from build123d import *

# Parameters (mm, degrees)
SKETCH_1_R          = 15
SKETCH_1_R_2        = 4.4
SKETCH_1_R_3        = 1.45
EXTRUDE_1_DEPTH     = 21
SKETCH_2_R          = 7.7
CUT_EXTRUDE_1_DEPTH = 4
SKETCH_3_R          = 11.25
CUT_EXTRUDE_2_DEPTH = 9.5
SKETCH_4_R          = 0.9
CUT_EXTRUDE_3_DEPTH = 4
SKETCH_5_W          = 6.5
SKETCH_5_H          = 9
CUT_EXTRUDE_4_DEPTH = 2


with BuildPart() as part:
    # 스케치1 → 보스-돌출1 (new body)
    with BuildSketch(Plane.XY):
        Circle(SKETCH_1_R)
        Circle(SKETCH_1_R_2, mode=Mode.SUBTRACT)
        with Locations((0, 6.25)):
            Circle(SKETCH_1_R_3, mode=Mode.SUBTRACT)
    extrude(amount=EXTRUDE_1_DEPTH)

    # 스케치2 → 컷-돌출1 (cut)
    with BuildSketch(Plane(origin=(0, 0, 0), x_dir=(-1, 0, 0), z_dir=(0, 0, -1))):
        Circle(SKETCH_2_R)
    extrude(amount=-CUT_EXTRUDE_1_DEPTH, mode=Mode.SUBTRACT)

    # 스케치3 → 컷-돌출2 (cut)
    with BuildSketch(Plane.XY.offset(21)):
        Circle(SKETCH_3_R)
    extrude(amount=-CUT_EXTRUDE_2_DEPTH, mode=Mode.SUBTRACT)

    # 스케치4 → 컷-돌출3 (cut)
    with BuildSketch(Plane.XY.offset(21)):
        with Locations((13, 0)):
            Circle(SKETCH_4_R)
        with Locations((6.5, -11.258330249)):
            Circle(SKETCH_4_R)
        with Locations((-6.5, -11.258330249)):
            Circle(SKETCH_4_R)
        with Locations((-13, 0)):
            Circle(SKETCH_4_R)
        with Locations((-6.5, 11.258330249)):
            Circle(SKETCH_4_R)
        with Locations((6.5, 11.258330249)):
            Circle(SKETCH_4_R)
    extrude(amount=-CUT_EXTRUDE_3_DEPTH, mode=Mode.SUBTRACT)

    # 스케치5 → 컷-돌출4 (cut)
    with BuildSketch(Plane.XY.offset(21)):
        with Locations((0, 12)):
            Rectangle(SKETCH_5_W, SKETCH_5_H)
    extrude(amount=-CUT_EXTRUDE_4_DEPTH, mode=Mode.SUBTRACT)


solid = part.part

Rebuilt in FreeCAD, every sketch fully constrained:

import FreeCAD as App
import Part
import Sketcher
Q = App.Units.Quantity

doc = App.newDocument("Part")
body = doc.addObject("PartDesign::Body", "Body")

sketch1 = body.newObject("Sketcher::SketchObject", "Sketch")
sketch1.AttachmentSupport = (doc.getObject("XY_Plane"), [""])
sketch1.MapMode = "FlatFace"
sketch1.addGeometry(Part.Circle(App.Vector(0, 0, 0), App.Vector(0, 0, 1), 15), False)
sketch1.addGeometry(Part.Circle(App.Vector(0, 0, 0), App.Vector(0, 0, 1), 4.4), False)
sketch1.addGeometry(Part.Circle(App.Vector(0, 6.25, 0), App.Vector(0, 0, 1), 1.45), False)
sketch1.addConstraint(Sketcher.Constraint("Coincident", 0, 3, -1, 1))
sketch1.addConstraint(Sketcher.Constraint("Coincident", 1, 3, -1, 1))
sketch1.addConstraint(Sketcher.Constraint("PointOnObject", 2, 3, -2))
sketch1.addConstraint(Sketcher.Constraint("Diameter", 0, Q("30 mm")))
sketch1.addConstraint(Sketcher.Constraint("Diameter", 1, Q("8.8 mm")))
sketch1.addConstraint(Sketcher.Constraint("Diameter", 2, Q("2.9 mm")))
sketch1.addConstraint(Sketcher.Constraint("DistanceY", -1, 1, 2, 3, Q("6.25 mm")))
pad1 = body.newObject("PartDesign::Pad", "Pad")
pad1.Profile = sketch1
pad1.Length = 21

sketch2 = body.newObject("Sketcher::SketchObject", "Sketch001")
sketch2.AttachmentSupport = (doc.getObject("XY_Plane"), [""])
sketch2.MapMode = "FlatFace"
sketch2.addGeometry(Part.Circle(App.Vector(0, 0, 0), App.Vector(0, 0, 1), 7.7), False)
sketch2.addConstraint(Sketcher.Constraint("Coincident", 0, 3, -1, 1))
sketch2.addConstraint(Sketcher.Constraint("Diameter", 0, Q("15.4 mm")))
pocket1 = body.newObject("PartDesign::Pocket", "Pocket")
pocket1.Profile = sketch2
pocket1.Length = 4
pocket1.Reversed = True

sketch3 = body.newObject("Sketcher::SketchObject", "Sketch002")
sketch3.AttachmentSupport = (doc.getObject("XY_Plane"), [""])
sketch3.MapMode = "FlatFace"
sketch3.AttachmentOffset = App.Placement(App.Vector(0, 0, 21), App.Rotation())
sketch3.addGeometry(Part.Circle(App.Vector(0, 0, 0), App.Vector(0, 0, 1), 11.25), False)
sketch3.addConstraint(Sketcher.Constraint("Coincident", 0, 3, -1, 1))
sketch3.addConstraint(Sketcher.Constraint("Diameter", 0, Q("22.5 mm")))
pocket2 = body.newObject("PartDesign::Pocket", "Pocket001")
pocket2.Profile = sketch3
pocket2.Length = 9.5

sketch4 = body.newObject("Sketcher::SketchObject", "Sketch003")
sketch4.AttachmentSupport = (doc.getObject("XY_Plane"), [""])
sketch4.MapMode = "FlatFace"
sketch4.AttachmentOffset = App.Placement(App.Vector(0, 0, 21), App.Rotation())
sketch4.addGeometry(Part.Circle(App.Vector(13, 0, 0), App.Vector(0, 0, 1), 0.9), False)
sketch4.addGeometry(Part.Circle(App.Vector(6.5, -11.25833, 0), App.Vector(0, 0, 1), 0.9), False)
sketch4.addGeometry(Part.Circle(App.Vector(-6.5, -11.25833, 0), App.Vector(0, 0, 1), 0.9), False)
sketch4.addGeometry(Part.Circle(App.Vector(-13, 0, 0), App.Vector(0, 0, 1), 0.9), False)
sketch4.addGeometry(Part.Circle(App.Vector(-6.5, 11.25833, 0), App.Vector(0, 0, 1), 0.9), False)
sketch4.addGeometry(Part.Circle(App.Vector(6.5, 11.25833, 0), App.Vector(0, 0, 1), 0.9), False)
sketch4.addConstraint(Sketcher.Constraint("Equal", 0, 1))
sketch4.addConstraint(Sketcher.Constraint("Equal", 1, 2))
sketch4.addConstraint(Sketcher.Constraint("Equal", 2, 3))
sketch4.addConstraint(Sketcher.Constraint("Equal", 3, 4))
sketch4.addConstraint(Sketcher.Constraint("Equal", 4, 5))
sketch4.addConstraint(Sketcher.Constraint("Symmetric", 0, 3, 3, 3, -1, 1))
sketch4.addConstraint(Sketcher.Constraint("Symmetric", 1, 3, 4, 3, -1, 1))
sketch4.addConstraint(Sketcher.Constraint("Symmetric", 2, 3, 5, 3, -1, 1))
sketch4.addConstraint(Sketcher.Constraint("Symmetric", 1, 3, 2, 3, -2))
sketch4.addConstraint(Sketcher.Constraint("PointOnObject", 0, 3, -1))
sketch4.addConstraint(Sketcher.Constraint("Diameter", 0, Q("1.8 mm")))
sketch4.addConstraint(Sketcher.Constraint("DistanceX", -1, 1, 0, 3, Q("13 mm")))
sketch4.addConstraint(Sketcher.Constraint("DistanceX", 2, 3, 1, 3, Q("13 mm")))
sketch4.addConstraint(Sketcher.Constraint("DistanceY", 1, 3, -1, 1, Q("11.25833 mm")))
pocket3 = body.newObject("PartDesign::Pocket", "Pocket002")
pocket3.Profile = sketch4
pocket3.Length = 4

sketch5 = body.newObject("Sketcher::SketchObject", "Sketch004")
sketch5.AttachmentSupport = (doc.getObject("XY_Plane"), [""])
sketch5.MapMode = "FlatFace"
sketch5.AttachmentOffset = App.Placement(App.Vector(0, 0, 21), App.Rotation())
sketch5.addGeometry(Part.LineSegment(App.Vector(-3.25, 16.5, 0), App.Vector(-3.25, 7.5, 0)), False)
sketch5.addGeometry(Part.LineSegment(App.Vector(-3.25, 7.5, 0), App.Vector(3.25, 7.5, 0)), False)
sketch5.addGeometry(Part.LineSegment(App.Vector(3.25, 7.5, 0), App.Vector(3.25, 16.5, 0)), False)
sketch5.addGeometry(Part.LineSegment(App.Vector(3.25, 16.5, 0), App.Vector(-3.25, 16.5, 0)), False)
sketch5.addConstraint(Sketcher.Constraint("Coincident", 0, 2, 1, 1))
sketch5.addConstraint(Sketcher.Constraint("Coincident", 1, 2, 2, 1))
sketch5.addConstraint(Sketcher.Constraint("Coincident", 2, 2, 3, 1))
sketch5.addConstraint(Sketcher.Constraint("Coincident", 3, 2, 0, 1))
sketch5.addConstraint(Sketcher.Constraint("Vertical", 0))
sketch5.addConstraint(Sketcher.Constraint("Horizontal", 1))
sketch5.addConstraint(Sketcher.Constraint("Vertical", 2))
sketch5.addConstraint(Sketcher.Constraint("Horizontal", 3))
sketch5.addConstraint(Sketcher.Constraint("DistanceY", 0, 2, 0, 1, Q("9 mm")))
sketch5.addConstraint(Sketcher.Constraint("DistanceX", 1, 1, 1, 2, Q("6.5 mm")))
sketch5.addConstraint(Sketcher.Constraint("DistanceY", -1, 1, 0, 2, Q("7.5 mm")))
sketch5.addConstraint(Sketcher.Constraint("DistanceX", 0, 2, -1, 1, Q("3.25 mm")))
pocket4 = body.newObject("PartDesign::Pocket", "Pocket003")
pocket4.Profile = sketch5
pocket4.Length = 2

doc.recompute()
